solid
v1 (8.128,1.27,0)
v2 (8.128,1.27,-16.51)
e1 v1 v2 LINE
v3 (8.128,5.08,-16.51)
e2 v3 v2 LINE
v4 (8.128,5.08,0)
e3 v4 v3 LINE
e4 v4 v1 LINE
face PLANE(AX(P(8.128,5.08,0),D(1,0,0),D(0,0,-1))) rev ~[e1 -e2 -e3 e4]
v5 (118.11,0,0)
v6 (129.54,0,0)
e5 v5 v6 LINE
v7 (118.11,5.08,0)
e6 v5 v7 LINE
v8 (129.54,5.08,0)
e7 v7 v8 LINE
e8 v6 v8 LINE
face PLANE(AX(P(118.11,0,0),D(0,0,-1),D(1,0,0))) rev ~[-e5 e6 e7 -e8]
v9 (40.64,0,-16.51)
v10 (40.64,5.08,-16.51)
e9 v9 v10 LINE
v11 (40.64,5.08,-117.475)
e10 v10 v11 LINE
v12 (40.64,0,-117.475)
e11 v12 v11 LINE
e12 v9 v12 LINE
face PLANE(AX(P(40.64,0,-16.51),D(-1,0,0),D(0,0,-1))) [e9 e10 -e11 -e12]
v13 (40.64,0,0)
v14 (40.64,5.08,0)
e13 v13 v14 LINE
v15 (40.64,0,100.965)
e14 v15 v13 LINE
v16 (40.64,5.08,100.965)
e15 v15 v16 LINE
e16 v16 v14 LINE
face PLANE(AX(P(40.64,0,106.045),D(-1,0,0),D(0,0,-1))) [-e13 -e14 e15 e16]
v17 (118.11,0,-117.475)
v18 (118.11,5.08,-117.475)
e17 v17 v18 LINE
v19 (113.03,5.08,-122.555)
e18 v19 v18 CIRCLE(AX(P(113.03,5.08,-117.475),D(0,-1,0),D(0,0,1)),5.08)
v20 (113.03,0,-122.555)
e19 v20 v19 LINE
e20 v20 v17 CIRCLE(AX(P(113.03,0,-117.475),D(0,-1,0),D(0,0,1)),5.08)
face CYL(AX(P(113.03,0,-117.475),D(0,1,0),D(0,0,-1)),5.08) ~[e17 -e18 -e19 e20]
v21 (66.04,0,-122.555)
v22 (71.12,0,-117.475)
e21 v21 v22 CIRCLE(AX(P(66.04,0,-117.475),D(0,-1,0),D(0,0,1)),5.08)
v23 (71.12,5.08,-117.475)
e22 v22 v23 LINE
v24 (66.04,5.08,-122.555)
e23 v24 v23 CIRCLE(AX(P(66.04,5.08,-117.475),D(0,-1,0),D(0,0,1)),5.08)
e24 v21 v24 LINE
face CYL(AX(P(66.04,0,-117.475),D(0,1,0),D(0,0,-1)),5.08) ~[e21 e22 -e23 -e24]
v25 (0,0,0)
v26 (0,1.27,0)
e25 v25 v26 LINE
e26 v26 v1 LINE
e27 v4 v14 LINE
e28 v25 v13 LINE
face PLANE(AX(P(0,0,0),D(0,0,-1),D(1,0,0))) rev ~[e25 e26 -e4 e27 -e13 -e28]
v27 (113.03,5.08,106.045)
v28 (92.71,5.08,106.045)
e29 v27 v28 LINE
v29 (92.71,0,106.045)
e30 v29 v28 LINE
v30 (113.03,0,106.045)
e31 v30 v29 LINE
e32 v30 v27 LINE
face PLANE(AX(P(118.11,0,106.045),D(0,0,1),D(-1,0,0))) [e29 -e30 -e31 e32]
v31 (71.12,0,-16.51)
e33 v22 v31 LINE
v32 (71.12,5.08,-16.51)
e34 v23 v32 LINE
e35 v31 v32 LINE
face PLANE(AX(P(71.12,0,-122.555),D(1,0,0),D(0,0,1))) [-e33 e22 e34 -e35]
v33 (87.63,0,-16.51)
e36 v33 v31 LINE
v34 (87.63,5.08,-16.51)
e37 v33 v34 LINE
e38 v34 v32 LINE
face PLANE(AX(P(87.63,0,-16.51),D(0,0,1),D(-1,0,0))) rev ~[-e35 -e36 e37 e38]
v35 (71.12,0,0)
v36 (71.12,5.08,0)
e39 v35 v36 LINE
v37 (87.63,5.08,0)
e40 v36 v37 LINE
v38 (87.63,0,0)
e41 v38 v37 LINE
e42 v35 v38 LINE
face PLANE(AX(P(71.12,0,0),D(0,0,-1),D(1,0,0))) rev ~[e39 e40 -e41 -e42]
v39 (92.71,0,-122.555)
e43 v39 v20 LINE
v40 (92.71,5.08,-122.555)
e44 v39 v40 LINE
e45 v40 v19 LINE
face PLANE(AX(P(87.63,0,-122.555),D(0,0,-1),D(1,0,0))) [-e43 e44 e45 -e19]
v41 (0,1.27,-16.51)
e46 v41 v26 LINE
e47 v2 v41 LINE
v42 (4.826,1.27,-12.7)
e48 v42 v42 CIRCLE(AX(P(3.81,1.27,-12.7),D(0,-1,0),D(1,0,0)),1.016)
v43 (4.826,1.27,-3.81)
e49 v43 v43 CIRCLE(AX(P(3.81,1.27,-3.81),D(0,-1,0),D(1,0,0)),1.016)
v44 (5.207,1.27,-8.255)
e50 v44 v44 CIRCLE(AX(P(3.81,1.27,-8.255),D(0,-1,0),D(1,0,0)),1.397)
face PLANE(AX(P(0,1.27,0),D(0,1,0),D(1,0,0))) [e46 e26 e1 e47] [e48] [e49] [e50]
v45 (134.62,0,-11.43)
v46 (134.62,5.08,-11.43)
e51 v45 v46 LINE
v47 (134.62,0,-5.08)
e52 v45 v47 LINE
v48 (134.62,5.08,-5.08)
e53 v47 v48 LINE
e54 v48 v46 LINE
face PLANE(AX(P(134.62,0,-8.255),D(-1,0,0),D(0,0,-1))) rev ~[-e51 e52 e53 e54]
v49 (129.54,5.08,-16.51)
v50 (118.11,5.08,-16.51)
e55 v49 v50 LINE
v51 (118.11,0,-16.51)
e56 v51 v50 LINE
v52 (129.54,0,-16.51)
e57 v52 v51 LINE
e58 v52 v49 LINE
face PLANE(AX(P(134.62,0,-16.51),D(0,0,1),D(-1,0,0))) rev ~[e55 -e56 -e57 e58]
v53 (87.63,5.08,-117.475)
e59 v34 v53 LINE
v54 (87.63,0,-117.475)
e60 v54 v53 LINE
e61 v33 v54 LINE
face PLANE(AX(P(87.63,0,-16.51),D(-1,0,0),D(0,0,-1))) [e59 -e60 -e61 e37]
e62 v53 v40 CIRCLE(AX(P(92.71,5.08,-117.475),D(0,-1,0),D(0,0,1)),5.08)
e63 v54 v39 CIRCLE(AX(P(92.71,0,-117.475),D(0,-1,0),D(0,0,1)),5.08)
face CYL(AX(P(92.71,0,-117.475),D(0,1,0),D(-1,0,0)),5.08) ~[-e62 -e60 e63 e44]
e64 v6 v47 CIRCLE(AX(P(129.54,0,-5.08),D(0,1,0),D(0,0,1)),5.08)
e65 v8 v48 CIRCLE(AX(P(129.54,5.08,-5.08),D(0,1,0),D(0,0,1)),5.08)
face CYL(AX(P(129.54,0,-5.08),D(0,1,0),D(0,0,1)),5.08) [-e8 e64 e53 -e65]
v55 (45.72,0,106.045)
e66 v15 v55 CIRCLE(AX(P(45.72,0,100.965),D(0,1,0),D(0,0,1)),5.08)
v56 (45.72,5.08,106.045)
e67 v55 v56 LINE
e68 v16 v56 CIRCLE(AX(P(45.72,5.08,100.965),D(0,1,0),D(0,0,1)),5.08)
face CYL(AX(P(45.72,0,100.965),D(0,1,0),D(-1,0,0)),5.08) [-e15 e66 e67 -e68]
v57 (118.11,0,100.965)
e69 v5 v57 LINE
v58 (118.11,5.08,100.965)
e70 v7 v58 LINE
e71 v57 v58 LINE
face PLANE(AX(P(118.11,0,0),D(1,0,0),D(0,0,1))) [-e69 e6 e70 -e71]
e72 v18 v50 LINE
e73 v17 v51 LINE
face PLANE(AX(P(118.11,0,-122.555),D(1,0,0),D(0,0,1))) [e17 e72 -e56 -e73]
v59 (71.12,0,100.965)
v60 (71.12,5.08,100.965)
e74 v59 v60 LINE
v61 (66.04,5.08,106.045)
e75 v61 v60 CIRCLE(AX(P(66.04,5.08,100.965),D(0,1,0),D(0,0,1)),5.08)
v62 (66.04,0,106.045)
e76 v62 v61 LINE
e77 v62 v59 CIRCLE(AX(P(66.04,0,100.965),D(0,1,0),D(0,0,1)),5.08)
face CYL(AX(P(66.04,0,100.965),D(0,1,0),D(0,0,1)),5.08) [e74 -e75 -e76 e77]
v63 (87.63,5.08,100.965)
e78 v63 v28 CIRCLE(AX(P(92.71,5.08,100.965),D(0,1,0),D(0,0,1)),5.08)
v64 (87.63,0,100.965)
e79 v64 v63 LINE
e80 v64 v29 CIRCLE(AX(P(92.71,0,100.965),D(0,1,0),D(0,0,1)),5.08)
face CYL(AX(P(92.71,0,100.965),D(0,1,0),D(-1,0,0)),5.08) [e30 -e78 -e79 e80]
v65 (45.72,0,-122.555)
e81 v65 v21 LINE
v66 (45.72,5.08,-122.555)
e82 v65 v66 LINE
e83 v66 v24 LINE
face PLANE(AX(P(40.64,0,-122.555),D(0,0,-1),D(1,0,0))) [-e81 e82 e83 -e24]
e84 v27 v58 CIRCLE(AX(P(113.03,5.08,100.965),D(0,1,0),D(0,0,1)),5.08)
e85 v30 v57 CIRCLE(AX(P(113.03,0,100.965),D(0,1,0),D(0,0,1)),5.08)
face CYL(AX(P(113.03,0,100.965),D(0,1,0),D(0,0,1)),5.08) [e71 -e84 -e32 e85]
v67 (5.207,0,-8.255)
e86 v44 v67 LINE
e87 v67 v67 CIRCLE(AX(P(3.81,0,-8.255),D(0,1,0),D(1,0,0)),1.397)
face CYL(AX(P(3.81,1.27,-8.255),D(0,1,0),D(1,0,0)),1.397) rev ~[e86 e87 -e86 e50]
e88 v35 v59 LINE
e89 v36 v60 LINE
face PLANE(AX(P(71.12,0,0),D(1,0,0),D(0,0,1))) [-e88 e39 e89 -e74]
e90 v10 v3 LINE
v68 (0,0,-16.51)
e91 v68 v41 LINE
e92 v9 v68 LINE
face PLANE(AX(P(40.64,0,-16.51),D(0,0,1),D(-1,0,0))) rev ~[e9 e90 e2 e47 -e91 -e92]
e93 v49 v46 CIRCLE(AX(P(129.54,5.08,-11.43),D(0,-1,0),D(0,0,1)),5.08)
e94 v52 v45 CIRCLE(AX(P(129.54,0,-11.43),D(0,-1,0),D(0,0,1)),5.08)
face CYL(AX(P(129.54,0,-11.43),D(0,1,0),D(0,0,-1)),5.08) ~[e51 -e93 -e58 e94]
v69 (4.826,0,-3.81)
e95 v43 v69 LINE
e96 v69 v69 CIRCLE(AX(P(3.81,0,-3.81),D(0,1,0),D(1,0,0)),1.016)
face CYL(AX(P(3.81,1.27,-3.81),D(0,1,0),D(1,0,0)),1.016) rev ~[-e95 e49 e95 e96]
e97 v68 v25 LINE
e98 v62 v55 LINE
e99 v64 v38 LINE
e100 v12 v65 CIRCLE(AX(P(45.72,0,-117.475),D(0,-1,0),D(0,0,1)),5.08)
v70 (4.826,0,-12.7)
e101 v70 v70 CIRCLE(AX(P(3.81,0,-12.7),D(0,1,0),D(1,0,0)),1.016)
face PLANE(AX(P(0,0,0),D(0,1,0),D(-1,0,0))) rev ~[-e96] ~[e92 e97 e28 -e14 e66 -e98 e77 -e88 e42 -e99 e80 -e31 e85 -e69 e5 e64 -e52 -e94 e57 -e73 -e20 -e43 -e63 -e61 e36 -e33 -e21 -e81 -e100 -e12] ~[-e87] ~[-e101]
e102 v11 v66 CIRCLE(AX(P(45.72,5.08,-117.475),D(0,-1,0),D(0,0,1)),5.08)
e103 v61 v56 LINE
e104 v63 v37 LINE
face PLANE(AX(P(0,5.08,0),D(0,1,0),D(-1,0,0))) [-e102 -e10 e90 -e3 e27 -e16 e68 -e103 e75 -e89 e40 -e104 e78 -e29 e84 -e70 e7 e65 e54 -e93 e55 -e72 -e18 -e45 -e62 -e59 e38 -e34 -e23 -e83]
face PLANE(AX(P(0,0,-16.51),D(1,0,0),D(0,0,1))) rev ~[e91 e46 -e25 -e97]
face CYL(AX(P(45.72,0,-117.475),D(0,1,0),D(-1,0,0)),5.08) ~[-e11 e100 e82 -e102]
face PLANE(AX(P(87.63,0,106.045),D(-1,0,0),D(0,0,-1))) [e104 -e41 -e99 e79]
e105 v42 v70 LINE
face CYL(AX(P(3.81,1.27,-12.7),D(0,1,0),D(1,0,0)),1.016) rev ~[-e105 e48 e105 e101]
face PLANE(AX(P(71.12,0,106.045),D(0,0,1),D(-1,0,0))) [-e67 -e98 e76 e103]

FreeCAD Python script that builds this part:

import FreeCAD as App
import Part
import Sketcher

V = App.Vector
Q = App.Units.Quantity


def edges_at(feature, points):
    """Names of the edges that pass closest to the given points."""
    edges = feature.Shape.Edges
    near = lambda p: min(range(len(edges)), key=lambda i: edges[i].distToShape(Part.Vertex(*p))[0])
    return sorted({f"Edge{near(p) + 1}" for p in points})

doc = App.newDocument("Part")
params = doc.addObject("Spreadsheet::Sheet", "Params")
for row, (alias, value) in enumerate([
    ("sketch1_width", "1.2 in"),
    ("sketch1_width2", "0.65 in"),
    ("sketch1_height", "4.175 in"),
    ("pad1_length", "0.2 in"),
    ("fillet_radius", "0.2 in"),
    ("fillet2_radius", "0.2 in"),
    ("sketch2_width", "0.32 in"),
    ("sketch2_height", "0.65 in"),
    ("pocket1_length", "0.15 in"),
    ("sketch3_diameter", "0.11 in"),
    ("sketch3_diameter2", "0.08 in"),
    ("pocket2_length", "0.05 in"),
], start=1):
    params.set(f"A{row}", alias)
    params.set(f"B{row}", "=" + value)
    params.setAlias(f"B{row}", alias)

body = doc.addObject("PartDesign::Body", "Body")

# Sketch on XZ plane
sketch1 = body.newObject("Sketcher::SketchObject", "Sketch")
sketch1.AttachmentSupport = (doc.getObject("XZ_Plane"), [""])
sketch1.MapMode = "FlatFace"
sketch1.addGeometry([
    Part.LineSegment(V(0, -17, 0), V(0, 0, 0)),  # 0
    Part.LineSegment(V(0, 0, 0), V(41, 0, 0)),  # 1
    Part.LineSegment(V(41, 0, 0), V(41, 106, 0)),  # 2
    Part.LineSegment(V(41, 106, 0), V(71, 106, 0)),  # 3
    Part.LineSegment(V(71, 106, 0), V(71, 0, 0)),  # 4
    Part.LineSegment(V(71, 0, 0), V(88, 0, 0)),  # 5
    Part.LineSegment(V(88, 0, 0), V(88, 106, 0)),  # 6
    Part.LineSegment(V(88, 106, 0), V(118, 106, 0)),  # 7
    Part.LineSegment(V(118, 106, 0), V(118, 0, 0)),  # 8
    Part.LineSegment(V(118, 0, 0), V(135, 0, 0)),  # 9
    Part.LineSegment(V(135, 0, 0), V(135, -17, 0)),  # 10
    Part.LineSegment(V(135, -17, 0), V(118, -17, 0)),  # 11
    Part.LineSegment(V(118, -17, 0), V(118, -123, 0)),  # 12
    Part.LineSegment(V(118, -123, 0), V(88, -123, 0)),  # 13
    Part.LineSegment(V(88, -123, 0), V(88, -17, 0)),  # 14
    Part.LineSegment(V(88, -17, 0), V(71, -17, 0)),  # 15
    Part.LineSegment(V(71, -17, 0), V(71, -123, 0)),  # 16
    Part.LineSegment(V(71, -123, 0), V(41, -123, 0)),  # 17
    Part.LineSegment(V(41, -123, 0), V(41, -17, 0)),  # 18
    Part.LineSegment(V(41, -17, 0), V(0, -17, 0)),  # 19
], False)
sketch1.addConstraint([
    Sketcher.Constraint("Coincident", 0, 2, 1, 1),
    Sketcher.Constraint("Coincident", 1, 2, 2, 1),
    Sketcher.Constraint("Coincident", 2, 2, 3, 1),
    Sketcher.Constraint("Coincident", 3, 2, 4, 1),
    Sketcher.Constraint("Coincident", 4, 2, 5, 1),
    Sketcher.Constraint("Coincident", 5, 2, 6, 1),
    Sketcher.Constraint("Coincident", 6, 2, 7, 1),
    Sketcher.Constraint("Coincident", 7, 2, 8, 1),
    Sketcher.Constraint("Coincident", 8, 2, 9, 1),
    Sketcher.Constraint("Coincident", 9, 2, 10, 1),
    Sketcher.Constraint("Coincident", 10, 2, 11, 1),
    Sketcher.Constraint("Coincident", 11, 2, 12, 1),
    Sketcher.Constraint("Coincident", 12, 2, 13, 1),
    Sketcher.Constraint("Coincident", 13, 2, 14, 1),
    Sketcher.Constraint("Coincident", 14, 2, 15, 1),
    Sketcher.Constraint("Coincident", 15, 2, 16, 1),
    Sketcher.Constraint("Coincident", 16, 2, 17, 1),
    Sketcher.Constraint("Coincident", 17, 2, 18, 1),
    Sketcher.Constraint("Coincident", 18, 2, 19, 1),
    Sketcher.Constraint("Coincident", 19, 2, 0, 1),
    Sketcher.Constraint("Vertical", 0),
    Sketcher.Constraint("Horizontal", 1),
    Sketcher.Constraint("Vertical", 2),
    Sketcher.Constraint("Horizontal", 3),
    Sketcher.Constraint("Vertical", 4),
    Sketcher.Constraint("Horizontal", 5),
    Sketcher.Constraint("Vertical", 6),
    Sketcher.Constraint("Horizontal", 7),
    Sketcher.Constraint("Vertical", 8),
    Sketcher.Constraint("Horizontal", 9),
    Sketcher.Constraint("Vertical", 10),
    Sketcher.Constraint("Horizontal", 11),
    Sketcher.Constraint("Vertical", 12),
    Sketcher.Constraint("Horizontal", 13),
    Sketcher.Constraint("Vertical", 14),
    Sketcher.Constraint("Horizontal", 15),
    Sketcher.Constraint("Vertical", 16),
    Sketcher.Constraint("Horizontal", 17),
    Sketcher.Constraint("Vertical", 18),
    Sketcher.Constraint("Horizontal", 19),
    Sketcher.Constraint("Coincident", 0, 2, -1, 1),
    Sketcher.Constraint("PointOnObject", 4, 2, -1),
    Sketcher.Constraint("PointOnObject", 8, 2, -1),
    Sketcher.Constraint("Horizontal", 3, 2, 6, 2),
    Sketcher.Constraint("Horizontal", 11, 2, 14, 2),
    Sketcher.Constraint("Horizontal", 13, 2, 16, 2),
    Sketcher.Constraint("Horizontal", 15, 2, 18, 2),
    Sketcher.Constraint("Vertical", 8, 2, 11, 2),
    Sketcher.Constraint("Vertical", 6, 2, 13, 2),
    Sketcher.Constraint("Vertical", 4, 2, 15, 2),
    Sketcher.Constraint("Vertical", 2, 2, 17, 2),
    Sketcher.Constraint("Equal", 3, 7),
    Sketcher.Constraint("Equal", 5, 9),
    Sketcher.Constraint("Equal", 15, 0),
    Sketcher.Constraint("Equal", 8, 12),
    Sketcher.Constraint("DistanceX", 3, 1, 3, 2, Q("1.2 in")),
    Sketcher.Constraint("DistanceX", 5, 1, 5, 2, Q("0.65 in")),
    Sketcher.Constraint("DistanceX", -1, 1, 9, 2, Q("5.3 in")),
    Sketcher.Constraint("DistanceY", 2, 1, 2, 2, Q("4.175 in")),
])
sketch1.setExpression("Constraints[55]", "Params.sketch1_width")
sketch1.setExpression("Constraints[56]", "Params.sketch1_width2")
sketch1.setExpression("Constraints[58]", "Params.sketch1_height")
pad1 = body.newObject("PartDesign::Pad", "Pad")
pad1.Profile = sketch1
pad1.setExpression("Length", "Params.pad1_length")
pad1.Reversed = True
doc.recompute()

fillet = body.newObject("PartDesign::Fillet", "Fillet")
fillet.Base = (pad1, edges_at(pad1, [
    (40.64, 2.54, -122.555),
    (71.12, 2.54, -122.555),
    (87.63, 2.54, -122.555),
    (118.11, 2.54, -122.555),
    (40.64, 2.54, 106.045),
    (87.63, 2.54, 106.045),
    (134.62, 2.54, -16.51),
]))
fillet.setExpression("Radius", "Params.fillet_radius")
doc.recompute()

fillet2 = body.newObject("PartDesign::Fillet", "Fillet001")
fillet2.Base = (fillet, edges_at(fillet, [(71.12, 2.54, 106.045), (118.11, 2.54, 106.045), (134.62, 2.54, 0)]))
fillet2.setExpression("Radius", "Params.fillet2_radius")

# Sketch on XZ plane
sketch2 = body.newObject("Sketcher::SketchObject", "Sketch001")
sketch2.AttachmentSupport = (doc.getObject("XZ_Plane"), [""])
sketch2.MapMode = "FlatFace"
sketch2.AttachmentOffset = App.Placement(V(0, 0, -0.2 * 25.4), App.Rotation())
sketch2.addGeometry([
    Part.LineSegment(V(8, 0, 0), V(8, -17, 0)),
    Part.LineSegment(V(8, -17, 0), V(0, -17, 0)),
    Part.LineSegment(V(0, -17, 0), V(0, 0, 0)),
    Part.LineSegment(V(0, 0, 0), V(8, 0, 0)),
], False)
sketch2.addConstraint([
    Sketcher.Constraint("Coincident", 0, 2, 1, 1),
    Sketcher.Constraint("Coincident", 1, 2, 2, 1),
    Sketcher.Constraint("Coincident", 2, 2, 3, 1),
    Sketcher.Constraint("Coincident", 3, 2, 0, 1),
    Sketcher.Constraint("Vertical", 0),
    Sketcher.Constraint("Horizontal", 1),
    Sketcher.Constraint("Vertical", 2),
    Sketcher.Constraint("Horizontal", 3),
    Sketcher.Constraint("Coincident", 2, 2, -1, 1),
    Sketcher.Constraint("DistanceX", 1, 2, 1, 1, Q("0.32 in")),
    Sketcher.Constraint("DistanceY", 0, 2, 0, 1, Q("0.65 in")),
])
sketch2.setExpression("Constraints[9]", "Params.sketch2_width")
sketch2.setExpression("Constraints[10]", "Params.sketch2_height")
pocket1 = body.newObject("PartDesign::Pocket", "Pocket")
pocket1.Profile = sketch2
pocket1.setExpression("Length", "Params.pocket1_length")
pocket1.Reversed = True

# Sketch on XZ plane
sketch3 = body.newObject("Sketcher::SketchObject", "Sketch002")
sketch3.AttachmentSupport = (doc.getObject("XZ_Plane"), [""])
sketch3.MapMode = "FlatFace"
sketch3.AttachmentOffset = App.Placement(V(0, 0, -0.05 * 25.4), App.Rotation())
sketch3.addGeometry([
    Part.Circle(V(3.8, -8.3, 0), V(0, 0, 1), 1.4),
    Part.Circle(V(3.8, -12.7, 0), V(0, 0, 1), 1),
    Part.Circle(V(3.8, -3.8, 0), V(0, 0, 1), 1),
], False)
sketch3.addConstraint([
    Sketcher.Constraint("Equal", 1, 2),
    Sketcher.Constraint("Vertical", 0, 3, 1, 3),
    Sketcher.Constraint("Vertical", 1, 3, 2, 3),
    Sketcher.Constraint("Diameter", 0, Q("0.11 in")),
    Sketcher.Constraint("Diameter", 1, Q("0.08 in")),
    Sketcher.Constraint("DistanceX", -1, 1, 0, 3, Q("0.15 in")),
    Sketcher.Constraint("DistanceY", 2, 3, -1, 1, Q("0.15 in")),
    Sketcher.Constraint("DistanceY", 1, 3, -1, 1, Q("0.5 in")),
    Sketcher.Constraint("DistanceY", 0, 3, -1, 1, Q("0.325 in")),
])
sketch3.setExpression("Constraints[3]", "Params.sketch3_diameter")
sketch3.setExpression("Constraints[4]", "Params.sketch3_diameter2")
pocket2 = body.newObject("PartDesign::Pocket", "Pocket001")
pocket2.Profile = sketch3
pocket2.setExpression("Length", "Params.pocket2_length")
pocket2.Reversed = True

doc.recompute()
